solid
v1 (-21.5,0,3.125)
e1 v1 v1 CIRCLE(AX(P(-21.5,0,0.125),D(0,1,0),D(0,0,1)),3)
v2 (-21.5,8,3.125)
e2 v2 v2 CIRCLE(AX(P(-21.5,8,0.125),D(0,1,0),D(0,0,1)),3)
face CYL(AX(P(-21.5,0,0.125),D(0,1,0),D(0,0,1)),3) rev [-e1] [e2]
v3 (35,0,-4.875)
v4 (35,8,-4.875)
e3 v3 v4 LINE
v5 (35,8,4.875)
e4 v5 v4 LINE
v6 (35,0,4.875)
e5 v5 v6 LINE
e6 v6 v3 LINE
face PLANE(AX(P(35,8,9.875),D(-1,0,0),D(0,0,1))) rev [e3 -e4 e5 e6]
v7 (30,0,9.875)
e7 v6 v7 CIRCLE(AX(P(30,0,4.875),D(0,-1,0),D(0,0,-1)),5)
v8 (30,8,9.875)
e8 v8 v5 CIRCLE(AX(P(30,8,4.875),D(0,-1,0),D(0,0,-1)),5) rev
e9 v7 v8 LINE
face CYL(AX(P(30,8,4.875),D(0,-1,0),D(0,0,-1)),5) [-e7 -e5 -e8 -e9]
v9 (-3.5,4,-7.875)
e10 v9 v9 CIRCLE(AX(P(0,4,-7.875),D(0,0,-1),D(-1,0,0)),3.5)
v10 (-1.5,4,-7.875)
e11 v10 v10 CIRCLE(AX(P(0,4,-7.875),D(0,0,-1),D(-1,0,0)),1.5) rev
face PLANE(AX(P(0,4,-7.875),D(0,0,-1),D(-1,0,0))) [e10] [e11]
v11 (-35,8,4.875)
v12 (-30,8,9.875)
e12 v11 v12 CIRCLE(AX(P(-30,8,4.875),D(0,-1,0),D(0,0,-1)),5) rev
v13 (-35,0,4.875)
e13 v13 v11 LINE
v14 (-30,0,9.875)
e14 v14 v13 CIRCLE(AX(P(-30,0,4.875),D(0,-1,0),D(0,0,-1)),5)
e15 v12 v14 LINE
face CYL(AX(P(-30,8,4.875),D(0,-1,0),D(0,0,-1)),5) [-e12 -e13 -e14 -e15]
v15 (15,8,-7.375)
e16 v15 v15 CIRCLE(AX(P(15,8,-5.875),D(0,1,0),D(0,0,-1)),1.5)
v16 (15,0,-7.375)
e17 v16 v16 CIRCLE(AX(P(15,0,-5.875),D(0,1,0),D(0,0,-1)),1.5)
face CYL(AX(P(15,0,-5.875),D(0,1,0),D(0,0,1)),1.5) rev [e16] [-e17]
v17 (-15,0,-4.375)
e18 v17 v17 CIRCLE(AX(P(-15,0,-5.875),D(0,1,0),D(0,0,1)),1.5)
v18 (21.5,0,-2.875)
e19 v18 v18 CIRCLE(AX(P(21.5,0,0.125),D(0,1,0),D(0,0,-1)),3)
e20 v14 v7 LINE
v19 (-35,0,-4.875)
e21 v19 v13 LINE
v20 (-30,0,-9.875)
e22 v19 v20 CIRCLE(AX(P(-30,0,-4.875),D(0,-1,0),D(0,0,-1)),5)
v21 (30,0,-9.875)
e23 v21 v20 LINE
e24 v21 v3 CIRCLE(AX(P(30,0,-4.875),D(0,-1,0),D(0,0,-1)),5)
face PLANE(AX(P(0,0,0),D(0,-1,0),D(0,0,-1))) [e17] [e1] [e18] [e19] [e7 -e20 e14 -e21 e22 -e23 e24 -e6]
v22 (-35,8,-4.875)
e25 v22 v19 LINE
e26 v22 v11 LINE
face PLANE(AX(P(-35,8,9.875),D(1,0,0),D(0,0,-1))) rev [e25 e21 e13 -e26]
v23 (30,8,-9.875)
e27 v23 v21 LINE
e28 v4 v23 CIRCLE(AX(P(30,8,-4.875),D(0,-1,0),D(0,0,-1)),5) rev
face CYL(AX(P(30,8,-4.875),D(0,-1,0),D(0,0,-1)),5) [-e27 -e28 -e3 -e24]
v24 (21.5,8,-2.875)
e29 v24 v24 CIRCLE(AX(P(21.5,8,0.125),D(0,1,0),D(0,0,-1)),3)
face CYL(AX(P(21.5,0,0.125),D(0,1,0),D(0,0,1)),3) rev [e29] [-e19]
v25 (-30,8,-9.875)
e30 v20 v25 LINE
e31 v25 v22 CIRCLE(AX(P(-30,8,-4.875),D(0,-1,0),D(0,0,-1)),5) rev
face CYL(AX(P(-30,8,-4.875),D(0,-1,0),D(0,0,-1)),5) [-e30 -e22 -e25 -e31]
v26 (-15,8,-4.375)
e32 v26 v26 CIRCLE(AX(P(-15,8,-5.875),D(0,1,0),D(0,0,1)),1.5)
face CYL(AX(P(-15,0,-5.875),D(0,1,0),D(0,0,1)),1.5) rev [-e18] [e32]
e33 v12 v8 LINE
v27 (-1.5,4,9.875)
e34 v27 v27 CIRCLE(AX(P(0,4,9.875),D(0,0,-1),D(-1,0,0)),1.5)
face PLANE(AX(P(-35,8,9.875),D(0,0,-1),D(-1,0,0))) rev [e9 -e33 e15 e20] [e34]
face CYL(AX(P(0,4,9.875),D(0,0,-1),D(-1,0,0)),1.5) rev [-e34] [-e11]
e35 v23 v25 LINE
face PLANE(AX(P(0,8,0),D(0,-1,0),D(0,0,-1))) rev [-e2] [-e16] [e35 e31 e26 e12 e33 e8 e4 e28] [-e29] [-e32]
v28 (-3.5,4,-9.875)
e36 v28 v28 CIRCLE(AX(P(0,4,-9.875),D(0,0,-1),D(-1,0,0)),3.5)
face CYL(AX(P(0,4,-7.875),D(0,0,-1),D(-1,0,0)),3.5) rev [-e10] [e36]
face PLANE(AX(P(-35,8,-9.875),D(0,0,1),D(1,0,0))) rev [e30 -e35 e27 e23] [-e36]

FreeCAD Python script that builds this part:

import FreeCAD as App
import Part
import Sketcher
Q = App.Units.Quantity


def edges_at(feature, points):
    """Names of the edges that pass closest to the given points."""
    edges = feature.Shape.Edges
    near = lambda p: min(range(len(edges)), key=lambda i: edges[i].distToShape(Part.Vertex(*p))[0])
    return sorted({f"Edge{near(p) + 1}" for p in points})

doc = App.newDocument("Part")
params = doc.addObject("Spreadsheet::Sheet", "Params")
for row, (alias, value) in enumerate([
    ("sketch1_width", "70 mm"),
    ("sketch1_height", "19.75 mm"),
    ("pad1_length", "8 mm"),
    ("sketch2_diameter", "6 mm"),
    ("sketch3_diameter", "3 mm"),
    ("sketch4_diameter", "3 mm"),
    ("fillet_radius", "5 mm"),
    ("sketch5_diameter", "7 mm"),
    ("pocket4_length", "2 mm"),
], start=1):
    params.set(f"A{row}", alias)
    params.set(f"B{row}", "=" + value)
    params.setAlias(f"B{row}", alias)

body = doc.addObject("PartDesign::Body", "Body")

sketch1 = doc.addObject("Sketcher::SketchObject", "Sketch")
body.addObject(sketch1)
sketch1.AttachmentSupport = (doc.XZ_Plane, [""])
sketch1.MapMode = "FlatFace"
sketch1.addGeometry([
    Part.LineSegment(App.Vector(-35, -10, 0), App.Vector(-35, 10, 0)),
    Part.LineSegment(App.Vector(-35, 10, 0), App.Vector(35, 10, 0)),
    Part.LineSegment(App.Vector(35, 10, 0), App.Vector(35, -10, 0)),
    Part.LineSegment(App.Vector(35, -10, 0), App.Vector(-35, -10, 0)),
], False)
sketch1.addConstraint([
    Sketcher.Constraint("Coincident", 0, 2, 1, 1),
    Sketcher.Constraint("Coincident", 1, 2, 2, 1),
    Sketcher.Constraint("Coincident", 2, 2, 3, 1),
    Sketcher.Constraint("Coincident", 3, 2, 0, 1),
    Sketcher.Constraint("Vertical", 0),
    Sketcher.Constraint("Horizontal", 1),
    Sketcher.Constraint("Vertical", 2),
    Sketcher.Constraint("Horizontal", 3),
    Sketcher.Constraint("Symmetric", 0, 2, 2, 2, -1, 1),
    Sketcher.Constraint("DistanceX", 1, 1, 1, 2, Q("70 mm")),
    Sketcher.Constraint("DistanceY", 0, 1, 0, 2, Q("19.75 mm")),
])
sketch1.setExpression("Constraints[9]", "Params.sketch1_width")
sketch1.setExpression("Constraints[10]", "Params.sketch1_height")
pad1 = doc.addObject("PartDesign::Pad", "Pad")
body.addObject(pad1)
pad1.Profile = sketch1
pad1.setExpression("Length", "Params.pad1_length")
pad1.Reversed = True

sketch2 = doc.addObject("Sketcher::SketchObject", "Sketch001")
body.addObject(sketch2)
sketch2.AttachmentSupport = (doc.XZ_Plane, [""])
sketch2.MapMode = "FlatFace"
sketch2.AttachmentOffset = App.Placement(App.Vector(0, 0, -8), App.Rotation())
sketch2.addGeometry([
    Part.Circle(App.Vector(-21.5, 0.1, 0), App.Vector(0, 0, 1), 3),
    Part.Circle(App.Vector(21.5, 0.1, 0), App.Vector(0, 0, 1), 3),
], False)
sketch2.addConstraint([
    Sketcher.Constraint("Equal", 0, 1),
    Sketcher.Constraint("Symmetric", 0, 3, 1, 3, -2),
    Sketcher.Constraint("Diameter", 0, Q("6 mm")),
    Sketcher.Constraint("DistanceX", 0, 3, 1, 3, Q("43 mm")),
    Sketcher.Constraint("DistanceY", -1, 1, 0, 3, Q("0.125 mm")),
])
sketch2.setExpression("Constraints[2]", "Params.sketch2_diameter")
pocket1 = doc.addObject("PartDesign::Pocket", "Pocket")
body.addObject(pocket1)
pocket1.Profile = sketch2
pocket1.Type = "ThroughAll"
pocket1.Reversed = True

sketch3 = doc.addObject("Sketcher::SketchObject", "Sketch002")
body.addObject(sketch3)
sketch3.AttachmentSupport = (doc.XZ_Plane, [""])
sketch3.MapMode = "FlatFace"
sketch3.AttachmentOffset = App.Placement(App.Vector(0, 0, -8), App.Rotation())
sketch3.addGeometry([
    Part.Circle(App.Vector(-15, -5.9, 0), App.Vector(0, 0, 1), 1.5),
    Part.Circle(App.Vector(15, -5.9, 0), App.Vector(0, 0, 1), 1.5),
], False)
sketch3.addConstraint([
    Sketcher.Constraint("Equal", 0, 1),
    Sketcher.Constraint("Symmetric", 0, 3, 1, 3, -2),
    Sketcher.Constraint("Diameter", 0, Q("3 mm")),
    Sketcher.Constraint("DistanceX", 0, 3, -1, 1, Q("15 mm")),
    Sketcher.Constraint("DistanceY", 0, 3, -1, 1, Q("5.875 mm")),
])
sketch3.setExpression("Constraints[2]", "Params.sketch3_diameter")
pocket2 = doc.addObject("PartDesign::Pocket", "Pocket001")
body.addObject(pocket2)
pocket2.Profile = sketch3
pocket2.Type = "ThroughAll"
pocket2.Reversed = True

sketch4 = doc.addObject("Sketcher::SketchObject", "Sketch003")
body.addObject(sketch4)
sketch4.AttachmentSupport = (doc.XY_Plane, [""])
sketch4.MapMode = "FlatFace"
sketch4.AttachmentOffset = App.Placement(App.Vector(0, 0, -9.875), App.Rotation())
sketch4.addGeometry(Part.Circle(App.Vector(0, 4, 0), App.Vector(0, 0, 1), 1.5), False)
sketch4.addConstraint([
    Sketcher.Constraint("PointOnObject", 0, 3, -2),
    Sketcher.Constraint("Diameter", 0, Q("3 mm")),
    Sketcher.Constraint("DistanceY", -1, 1, 0, 3, Q("4 mm")),
])
sketch4.setExpression("Constraints[1]", "Params.sketch4_diameter")
pocket3 = doc.addObject("PartDesign::Pocket", "Pocket002")
body.addObject(pocket3)
pocket3.Profile = sketch4
pocket3.Type = "ThroughAll"
pocket3.Reversed = True
doc.recompute()

fillet = doc.addObject("PartDesign::Fillet", "Fillet")
body.addObject(fillet)
fillet.Base = (pocket3, edges_at(pocket3, [
    (35, 4, 9.875),
    (-35, 4, 9.875),
    (-35, 4, -9.875),
    (35, 4, -9.875),
]))
fillet.setExpression("Radius", "Params.fillet_radius")

sketch5 = doc.addObject("Sketcher::SketchObject", "Sketch004")
body.addObject(sketch5)
sketch5.AttachmentSupport = (doc.XY_Plane, [""])
sketch5.MapMode = "FlatFace"
sketch5.AttachmentOffset = App.Placement(App.Vector(0, 0, -9.875), App.Rotation())
sketch5.addGeometry(Part.Circle(App.Vector(0, 4, 0), App.Vector(0, 0, 1), 3.5), False)
sketch5.addConstraint([
    Sketcher.Constraint("PointOnObject", 0, 3, -2),
    Sketcher.Constraint("Diameter", 0, Q("7 mm")),
    Sketcher.Constraint("DistanceY", -1, 1, 0, 3, Q("4 mm")),
])
sketch5.setExpression("Constraints[1]", "Params.sketch5_diameter")
pocket4 = doc.addObject("PartDesign::Pocket", "Pocket003")
body.addObject(pocket4)
pocket4.Profile = sketch5
pocket4.setExpression("Length", "Params.pocket4_length")
pocket4.Reversed = True

doc.recompute()
